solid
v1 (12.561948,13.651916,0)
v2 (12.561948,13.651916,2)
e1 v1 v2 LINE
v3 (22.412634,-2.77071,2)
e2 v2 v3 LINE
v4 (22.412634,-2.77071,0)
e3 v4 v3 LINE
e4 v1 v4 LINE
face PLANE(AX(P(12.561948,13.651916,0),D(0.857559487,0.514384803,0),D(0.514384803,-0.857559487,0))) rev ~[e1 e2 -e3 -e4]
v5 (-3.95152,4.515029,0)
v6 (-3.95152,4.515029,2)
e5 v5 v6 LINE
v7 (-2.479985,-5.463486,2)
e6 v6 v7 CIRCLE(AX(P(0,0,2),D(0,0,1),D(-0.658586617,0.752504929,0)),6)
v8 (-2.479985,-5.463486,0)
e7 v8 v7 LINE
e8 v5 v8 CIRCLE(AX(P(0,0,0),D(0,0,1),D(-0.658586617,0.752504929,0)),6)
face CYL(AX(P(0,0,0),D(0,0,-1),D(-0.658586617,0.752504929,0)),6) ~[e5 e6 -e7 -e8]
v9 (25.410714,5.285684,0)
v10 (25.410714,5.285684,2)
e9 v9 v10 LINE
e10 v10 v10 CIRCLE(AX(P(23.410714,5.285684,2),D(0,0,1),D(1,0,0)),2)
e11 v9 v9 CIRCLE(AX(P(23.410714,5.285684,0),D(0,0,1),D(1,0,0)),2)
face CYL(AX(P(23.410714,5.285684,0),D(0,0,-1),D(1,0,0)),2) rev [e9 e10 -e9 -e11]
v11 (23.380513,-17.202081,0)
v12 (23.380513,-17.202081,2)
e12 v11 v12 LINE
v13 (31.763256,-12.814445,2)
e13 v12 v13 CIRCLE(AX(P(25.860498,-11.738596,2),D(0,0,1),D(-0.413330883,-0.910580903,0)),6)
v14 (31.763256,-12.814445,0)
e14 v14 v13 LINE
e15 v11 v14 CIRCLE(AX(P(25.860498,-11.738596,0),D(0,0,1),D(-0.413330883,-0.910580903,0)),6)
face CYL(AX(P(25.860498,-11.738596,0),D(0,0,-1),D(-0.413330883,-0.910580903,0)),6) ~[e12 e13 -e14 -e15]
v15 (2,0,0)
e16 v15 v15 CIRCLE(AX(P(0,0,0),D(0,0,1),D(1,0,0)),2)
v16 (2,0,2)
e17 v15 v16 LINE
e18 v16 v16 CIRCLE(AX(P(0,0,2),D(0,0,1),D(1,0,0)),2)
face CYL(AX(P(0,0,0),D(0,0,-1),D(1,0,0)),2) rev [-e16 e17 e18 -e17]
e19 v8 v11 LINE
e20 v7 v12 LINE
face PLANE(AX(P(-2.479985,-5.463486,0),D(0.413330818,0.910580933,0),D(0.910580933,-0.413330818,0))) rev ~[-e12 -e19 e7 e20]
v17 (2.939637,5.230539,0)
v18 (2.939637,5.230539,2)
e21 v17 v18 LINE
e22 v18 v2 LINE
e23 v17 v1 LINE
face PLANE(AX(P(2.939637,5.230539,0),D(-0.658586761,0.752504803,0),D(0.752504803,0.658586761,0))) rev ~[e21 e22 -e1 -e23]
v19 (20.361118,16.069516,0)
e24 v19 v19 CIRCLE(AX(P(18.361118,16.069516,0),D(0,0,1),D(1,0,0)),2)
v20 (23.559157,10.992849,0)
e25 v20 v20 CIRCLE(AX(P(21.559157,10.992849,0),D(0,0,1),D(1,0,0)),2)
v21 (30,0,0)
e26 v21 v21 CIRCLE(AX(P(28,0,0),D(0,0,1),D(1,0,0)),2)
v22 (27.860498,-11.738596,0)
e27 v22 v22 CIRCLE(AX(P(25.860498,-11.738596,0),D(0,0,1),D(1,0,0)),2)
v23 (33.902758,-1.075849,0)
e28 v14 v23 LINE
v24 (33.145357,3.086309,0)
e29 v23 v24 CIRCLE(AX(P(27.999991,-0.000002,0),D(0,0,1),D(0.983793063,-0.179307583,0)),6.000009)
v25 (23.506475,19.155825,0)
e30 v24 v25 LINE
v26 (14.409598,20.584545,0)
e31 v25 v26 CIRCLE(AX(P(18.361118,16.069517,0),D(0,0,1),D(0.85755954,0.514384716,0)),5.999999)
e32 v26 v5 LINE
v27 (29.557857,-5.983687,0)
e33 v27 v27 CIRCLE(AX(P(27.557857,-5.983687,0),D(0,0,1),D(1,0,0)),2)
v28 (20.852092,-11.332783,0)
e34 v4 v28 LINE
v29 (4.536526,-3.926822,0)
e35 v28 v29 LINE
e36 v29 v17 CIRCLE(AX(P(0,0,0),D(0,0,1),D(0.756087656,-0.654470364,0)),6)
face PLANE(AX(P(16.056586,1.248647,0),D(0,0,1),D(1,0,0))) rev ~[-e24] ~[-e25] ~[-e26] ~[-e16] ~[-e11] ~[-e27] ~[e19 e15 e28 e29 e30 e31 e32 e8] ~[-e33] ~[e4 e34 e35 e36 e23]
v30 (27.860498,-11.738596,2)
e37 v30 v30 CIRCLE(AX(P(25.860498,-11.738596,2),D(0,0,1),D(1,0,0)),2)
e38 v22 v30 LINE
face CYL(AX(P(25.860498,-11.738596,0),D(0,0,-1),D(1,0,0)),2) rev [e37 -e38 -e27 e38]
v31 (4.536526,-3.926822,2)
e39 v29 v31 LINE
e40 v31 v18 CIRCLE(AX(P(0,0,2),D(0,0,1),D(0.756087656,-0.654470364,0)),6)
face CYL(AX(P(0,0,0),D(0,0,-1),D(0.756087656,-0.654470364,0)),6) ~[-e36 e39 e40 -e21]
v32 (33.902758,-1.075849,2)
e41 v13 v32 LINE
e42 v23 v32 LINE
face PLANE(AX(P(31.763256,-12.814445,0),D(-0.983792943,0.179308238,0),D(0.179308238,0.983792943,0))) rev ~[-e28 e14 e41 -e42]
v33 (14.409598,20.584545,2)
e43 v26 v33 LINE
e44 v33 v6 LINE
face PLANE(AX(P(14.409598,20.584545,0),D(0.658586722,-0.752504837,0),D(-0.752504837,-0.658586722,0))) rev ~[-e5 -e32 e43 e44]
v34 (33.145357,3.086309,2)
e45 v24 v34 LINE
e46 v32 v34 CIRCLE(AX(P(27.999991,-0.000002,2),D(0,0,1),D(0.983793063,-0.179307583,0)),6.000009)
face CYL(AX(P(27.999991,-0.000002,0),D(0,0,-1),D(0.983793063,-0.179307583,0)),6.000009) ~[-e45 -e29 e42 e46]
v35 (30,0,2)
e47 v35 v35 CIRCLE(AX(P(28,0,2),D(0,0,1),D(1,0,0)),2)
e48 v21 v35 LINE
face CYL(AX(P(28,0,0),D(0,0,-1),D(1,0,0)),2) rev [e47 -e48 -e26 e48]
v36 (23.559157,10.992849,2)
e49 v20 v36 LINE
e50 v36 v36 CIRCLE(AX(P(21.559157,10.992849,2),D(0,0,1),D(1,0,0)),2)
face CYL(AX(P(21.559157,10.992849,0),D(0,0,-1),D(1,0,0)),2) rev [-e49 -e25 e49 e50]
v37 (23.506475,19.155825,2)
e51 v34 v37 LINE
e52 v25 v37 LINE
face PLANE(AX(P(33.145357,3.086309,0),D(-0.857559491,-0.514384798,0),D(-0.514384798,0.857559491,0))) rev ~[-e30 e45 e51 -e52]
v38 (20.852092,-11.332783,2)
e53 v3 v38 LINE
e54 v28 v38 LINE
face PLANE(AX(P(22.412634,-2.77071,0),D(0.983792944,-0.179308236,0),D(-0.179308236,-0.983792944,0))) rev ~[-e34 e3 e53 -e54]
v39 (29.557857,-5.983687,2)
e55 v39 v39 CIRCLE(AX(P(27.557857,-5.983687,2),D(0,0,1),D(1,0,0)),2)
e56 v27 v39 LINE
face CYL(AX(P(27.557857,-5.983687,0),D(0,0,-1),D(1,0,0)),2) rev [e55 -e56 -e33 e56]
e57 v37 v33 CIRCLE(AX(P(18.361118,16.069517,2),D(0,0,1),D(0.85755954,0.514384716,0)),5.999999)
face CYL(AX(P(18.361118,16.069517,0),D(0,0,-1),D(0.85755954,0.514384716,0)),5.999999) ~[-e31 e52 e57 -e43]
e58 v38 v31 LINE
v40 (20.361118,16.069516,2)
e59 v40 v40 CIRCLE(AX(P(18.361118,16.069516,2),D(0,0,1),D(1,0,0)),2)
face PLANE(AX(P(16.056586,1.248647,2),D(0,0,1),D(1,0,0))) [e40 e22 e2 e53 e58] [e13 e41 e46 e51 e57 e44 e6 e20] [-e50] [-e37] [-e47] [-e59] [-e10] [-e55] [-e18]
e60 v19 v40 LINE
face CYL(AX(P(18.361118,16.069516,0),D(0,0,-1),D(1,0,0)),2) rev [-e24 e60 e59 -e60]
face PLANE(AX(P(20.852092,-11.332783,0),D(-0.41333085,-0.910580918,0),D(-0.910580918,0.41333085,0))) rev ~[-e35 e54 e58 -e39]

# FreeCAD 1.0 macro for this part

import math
import FreeCAD as App
import Part
import Sketcher
from FreeCAD import Vector
Q = App.Units.Quantity

doc = App.newDocument("Part")
body = doc.addObject("PartDesign::Body", "Body")

# Sketch on XY plane
sketch1 = body.newObject("Sketcher::SketchObject", "Sketch")
sketch1.AttachmentSupport = (doc.getObject("XY_Plane"), [""])
sketch1.MapMode = "FlatFace"
sketch1.addGeometry([
    Part.LineSegment(Vector(14.409598, 20.584545, 0), Vector(-3.95152, 4.515029, 0)),  # 0
    Part.ArcOfCircle(Part.Circle(Vector(0, 0, 0), Vector(0, 0, 1), 6), math.radians(131.192169), math.radians(245.585759)),  # 1
    Part.LineSegment(Vector(-2.479985, -5.463486, 0), Vector(23.380513, -17.202081, 0)),  # 2
    Part.ArcOfCircle(Part.Circle(Vector(25.860498, -11.738596, 0), Vector(0, 0, 1), 6), math.radians(-114.414248), math.radians(-10.329469)),  # 3
    Part.LineSegment(Vector(31.763256, -12.814445, 0), Vector(33.902758, -1.075849, 0)),  # 4
    Part.ArcOfCircle(Part.Circle(Vector(27.999991, -0.000002, 0), Vector(0, 0, 1), 6.000009), math.radians(-10.329431), math.radians(30.956313)),  # 5
    Part.LineSegment(Vector(33.145357, 3.086309, 0), Vector(23.506475, 19.155825, 0)),  # 6
    Part.ArcOfCircle(Part.Circle(Vector(18.361118, 16.069517, 0), Vector(0, 0, 1), 5.999999), math.radians(30.956337), math.radians(131.192185)),  # 7
    Part.Circle(Vector(0, 0, 0), Vector(0, 0, 1), 2),  # 8
    Part.LineSegment(Vector(20.852092, -11.332783, 0), Vector(4.536526, -3.926822, 0)),  # 9
    Part.ArcOfCircle(Part.Circle(Vector(0, 0, 0), Vector(0, 0, 1), 6), math.radians(-40.879502), math.radians(60.663395)),  # 10
    Part.LineSegment(Vector(2.939637, 5.230539, 0), Vector(12.561948, 13.651916, 0)),  # 11
    Part.LineSegment(Vector(12.561948, 13.651916, 0), Vector(22.412634, -2.77071, 0)),  # 12
    Part.LineSegment(Vector(22.412634, -2.77071, 0), Vector(20.852092, -11.332783, 0)),  # 13
    Part.Circle(Vector(25.860498, -11.738596, 0), Vector(0, 0, 1), 2),  # 14
    Part.Circle(Vector(27.557857, -5.983687, 0), Vector(0, 0, 1), 2),  # 15
    Part.Circle(Vector(28, 0, 0), Vector(0, 0, 1), 2),  # 16
    Part.Circle(Vector(23.410714, 5.285684, 0), Vector(0, 0, 1), 2),  # 17
    Part.Circle(Vector(21.559157, 10.992849, 0), Vector(0, 0, 1), 2),  # 18
    Part.Circle(Vector(18.361118, 16.069516, 0), Vector(0, 0, 1), 2),  # 19
], False)
sketch1.addConstraint([
    Sketcher.Constraint("Tangent", 0, 2, 1, 1),
    Sketcher.Constraint("Tangent", 1, 2, 2, 1),
    Sketcher.Constraint("Tangent", 2, 2, 3, 1),
    Sketcher.Constraint("Tangent", 3, 2, 4, 1),
    Sketcher.Constraint("Tangent", 4, 2, 5, 1),
    Sketcher.Constraint("Tangent", 5, 2, 6, 1),
    Sketcher.Constraint("Tangent", 6, 2, 7, 1),
    Sketcher.Constraint("Tangent", 7, 2, 0, 1),
    Sketcher.Constraint("Coincident", 9, 2, 10, 1),
    Sketcher.Constraint("Coincident", 10, 2, 11, 1),
    Sketcher.Constraint("Coincident", 11, 2, 12, 1),
    Sketcher.Constraint("Coincident", 12, 2, 13, 1),
    Sketcher.Constraint("Coincident", 13, 2, 9, 1),
    Sketcher.Constraint("Coincident", 1, 3, -1, 1),
    Sketcher.Constraint("Coincident", 8, 3, -1, 1),
    Sketcher.Constraint("Coincident", 10, 3, -1, 1),
    Sketcher.Constraint("Coincident", 14, 3, 3, 3),
    Sketcher.Constraint("Coincident", 16, 3, 5, 3),
    Sketcher.Constraint("Coincident", 19, 3, 7, 3),
    Sketcher.Constraint("Equal", 1, 3),
    Sketcher.Constraint("Equal", 3, 7),
    Sketcher.Constraint("Equal", 7, 10),
    Sketcher.Constraint("Equal", 8, 14),
    Sketcher.Constraint("Equal", 14, 15),
    Sketcher.Constraint("Equal", 15, 16),
    Sketcher.Constraint("Equal", 16, 17),
    Sketcher.Constraint("Equal", 17, 18),
    Sketcher.Constraint("Equal", 18, 19),
    Sketcher.Constraint("PointOnObject", 5, 3, -1),
    Sketcher.Constraint("Parallel", 2, 9),
    Sketcher.Constraint("Parallel", 0, 11),
    Sketcher.Constraint("Parallel", 6, 12),
    Sketcher.Constraint("Parallel", 4, 13),
    Sketcher.Constraint("Diameter", 8, Q("4 mm")),
    Sketcher.Constraint("Radius", 1, Q("6 mm")),
    Sketcher.Constraint("DistanceX", -1, 1, 16, 3, Q("28 mm")),
    Sketcher.Constraint("Distance", 0, Q("24.4 mm")),
    Sketcher.Constraint("Distance", 2, Q("28.399999 mm")),
    Sketcher.Constraint("Radius", 5, Q("6.000009 mm")),
    Sketcher.Constraint("DistanceX", -1, 1, 3, 3, Q("25.860498 mm")),
    Sketcher.Constraint("DistanceX", -1, 1, 7, 2, Q("14.409598 mm")),
    Sketcher.Constraint("DistanceX", 18, 3, 15, 3, Q("5.9987 mm")),
    Sketcher.Constraint("DistanceX", 1, 2, 17, 3, Q("25.890699 mm")),
    Sketcher.Constraint("DistanceX", 15, 3, 3, 2, Q("4.205399 mm")),
    Sketcher.Constraint("DistanceY", 11, 2, 19, 3, Q("2.4176 mm")),
    Sketcher.Constraint("DistanceY", 2, 2, 13, 2, Q("5.869298 mm")),
    Sketcher.Constraint("Distance", 12, Q("19.150422 mm")),
    Sketcher.Constraint("DistanceY", -1, 1, 18, 3, Q("10.992849 mm")),
    Sketcher.Constraint("DistanceY", 9, 2, -1, 1, Q("3.926822 mm")),
    Sketcher.Constraint("DistanceY", 3, 3, 15, 3, Q("5.754909 mm")),
    Sketcher.Constraint("DistanceY", 15, 3, 17, 3, Q("11.269371 mm")),
])
pad1 = body.newObject("PartDesign::Pad", "Pad")
pad1.Profile = sketch1
pad1.Length = 2

doc.recompute()
